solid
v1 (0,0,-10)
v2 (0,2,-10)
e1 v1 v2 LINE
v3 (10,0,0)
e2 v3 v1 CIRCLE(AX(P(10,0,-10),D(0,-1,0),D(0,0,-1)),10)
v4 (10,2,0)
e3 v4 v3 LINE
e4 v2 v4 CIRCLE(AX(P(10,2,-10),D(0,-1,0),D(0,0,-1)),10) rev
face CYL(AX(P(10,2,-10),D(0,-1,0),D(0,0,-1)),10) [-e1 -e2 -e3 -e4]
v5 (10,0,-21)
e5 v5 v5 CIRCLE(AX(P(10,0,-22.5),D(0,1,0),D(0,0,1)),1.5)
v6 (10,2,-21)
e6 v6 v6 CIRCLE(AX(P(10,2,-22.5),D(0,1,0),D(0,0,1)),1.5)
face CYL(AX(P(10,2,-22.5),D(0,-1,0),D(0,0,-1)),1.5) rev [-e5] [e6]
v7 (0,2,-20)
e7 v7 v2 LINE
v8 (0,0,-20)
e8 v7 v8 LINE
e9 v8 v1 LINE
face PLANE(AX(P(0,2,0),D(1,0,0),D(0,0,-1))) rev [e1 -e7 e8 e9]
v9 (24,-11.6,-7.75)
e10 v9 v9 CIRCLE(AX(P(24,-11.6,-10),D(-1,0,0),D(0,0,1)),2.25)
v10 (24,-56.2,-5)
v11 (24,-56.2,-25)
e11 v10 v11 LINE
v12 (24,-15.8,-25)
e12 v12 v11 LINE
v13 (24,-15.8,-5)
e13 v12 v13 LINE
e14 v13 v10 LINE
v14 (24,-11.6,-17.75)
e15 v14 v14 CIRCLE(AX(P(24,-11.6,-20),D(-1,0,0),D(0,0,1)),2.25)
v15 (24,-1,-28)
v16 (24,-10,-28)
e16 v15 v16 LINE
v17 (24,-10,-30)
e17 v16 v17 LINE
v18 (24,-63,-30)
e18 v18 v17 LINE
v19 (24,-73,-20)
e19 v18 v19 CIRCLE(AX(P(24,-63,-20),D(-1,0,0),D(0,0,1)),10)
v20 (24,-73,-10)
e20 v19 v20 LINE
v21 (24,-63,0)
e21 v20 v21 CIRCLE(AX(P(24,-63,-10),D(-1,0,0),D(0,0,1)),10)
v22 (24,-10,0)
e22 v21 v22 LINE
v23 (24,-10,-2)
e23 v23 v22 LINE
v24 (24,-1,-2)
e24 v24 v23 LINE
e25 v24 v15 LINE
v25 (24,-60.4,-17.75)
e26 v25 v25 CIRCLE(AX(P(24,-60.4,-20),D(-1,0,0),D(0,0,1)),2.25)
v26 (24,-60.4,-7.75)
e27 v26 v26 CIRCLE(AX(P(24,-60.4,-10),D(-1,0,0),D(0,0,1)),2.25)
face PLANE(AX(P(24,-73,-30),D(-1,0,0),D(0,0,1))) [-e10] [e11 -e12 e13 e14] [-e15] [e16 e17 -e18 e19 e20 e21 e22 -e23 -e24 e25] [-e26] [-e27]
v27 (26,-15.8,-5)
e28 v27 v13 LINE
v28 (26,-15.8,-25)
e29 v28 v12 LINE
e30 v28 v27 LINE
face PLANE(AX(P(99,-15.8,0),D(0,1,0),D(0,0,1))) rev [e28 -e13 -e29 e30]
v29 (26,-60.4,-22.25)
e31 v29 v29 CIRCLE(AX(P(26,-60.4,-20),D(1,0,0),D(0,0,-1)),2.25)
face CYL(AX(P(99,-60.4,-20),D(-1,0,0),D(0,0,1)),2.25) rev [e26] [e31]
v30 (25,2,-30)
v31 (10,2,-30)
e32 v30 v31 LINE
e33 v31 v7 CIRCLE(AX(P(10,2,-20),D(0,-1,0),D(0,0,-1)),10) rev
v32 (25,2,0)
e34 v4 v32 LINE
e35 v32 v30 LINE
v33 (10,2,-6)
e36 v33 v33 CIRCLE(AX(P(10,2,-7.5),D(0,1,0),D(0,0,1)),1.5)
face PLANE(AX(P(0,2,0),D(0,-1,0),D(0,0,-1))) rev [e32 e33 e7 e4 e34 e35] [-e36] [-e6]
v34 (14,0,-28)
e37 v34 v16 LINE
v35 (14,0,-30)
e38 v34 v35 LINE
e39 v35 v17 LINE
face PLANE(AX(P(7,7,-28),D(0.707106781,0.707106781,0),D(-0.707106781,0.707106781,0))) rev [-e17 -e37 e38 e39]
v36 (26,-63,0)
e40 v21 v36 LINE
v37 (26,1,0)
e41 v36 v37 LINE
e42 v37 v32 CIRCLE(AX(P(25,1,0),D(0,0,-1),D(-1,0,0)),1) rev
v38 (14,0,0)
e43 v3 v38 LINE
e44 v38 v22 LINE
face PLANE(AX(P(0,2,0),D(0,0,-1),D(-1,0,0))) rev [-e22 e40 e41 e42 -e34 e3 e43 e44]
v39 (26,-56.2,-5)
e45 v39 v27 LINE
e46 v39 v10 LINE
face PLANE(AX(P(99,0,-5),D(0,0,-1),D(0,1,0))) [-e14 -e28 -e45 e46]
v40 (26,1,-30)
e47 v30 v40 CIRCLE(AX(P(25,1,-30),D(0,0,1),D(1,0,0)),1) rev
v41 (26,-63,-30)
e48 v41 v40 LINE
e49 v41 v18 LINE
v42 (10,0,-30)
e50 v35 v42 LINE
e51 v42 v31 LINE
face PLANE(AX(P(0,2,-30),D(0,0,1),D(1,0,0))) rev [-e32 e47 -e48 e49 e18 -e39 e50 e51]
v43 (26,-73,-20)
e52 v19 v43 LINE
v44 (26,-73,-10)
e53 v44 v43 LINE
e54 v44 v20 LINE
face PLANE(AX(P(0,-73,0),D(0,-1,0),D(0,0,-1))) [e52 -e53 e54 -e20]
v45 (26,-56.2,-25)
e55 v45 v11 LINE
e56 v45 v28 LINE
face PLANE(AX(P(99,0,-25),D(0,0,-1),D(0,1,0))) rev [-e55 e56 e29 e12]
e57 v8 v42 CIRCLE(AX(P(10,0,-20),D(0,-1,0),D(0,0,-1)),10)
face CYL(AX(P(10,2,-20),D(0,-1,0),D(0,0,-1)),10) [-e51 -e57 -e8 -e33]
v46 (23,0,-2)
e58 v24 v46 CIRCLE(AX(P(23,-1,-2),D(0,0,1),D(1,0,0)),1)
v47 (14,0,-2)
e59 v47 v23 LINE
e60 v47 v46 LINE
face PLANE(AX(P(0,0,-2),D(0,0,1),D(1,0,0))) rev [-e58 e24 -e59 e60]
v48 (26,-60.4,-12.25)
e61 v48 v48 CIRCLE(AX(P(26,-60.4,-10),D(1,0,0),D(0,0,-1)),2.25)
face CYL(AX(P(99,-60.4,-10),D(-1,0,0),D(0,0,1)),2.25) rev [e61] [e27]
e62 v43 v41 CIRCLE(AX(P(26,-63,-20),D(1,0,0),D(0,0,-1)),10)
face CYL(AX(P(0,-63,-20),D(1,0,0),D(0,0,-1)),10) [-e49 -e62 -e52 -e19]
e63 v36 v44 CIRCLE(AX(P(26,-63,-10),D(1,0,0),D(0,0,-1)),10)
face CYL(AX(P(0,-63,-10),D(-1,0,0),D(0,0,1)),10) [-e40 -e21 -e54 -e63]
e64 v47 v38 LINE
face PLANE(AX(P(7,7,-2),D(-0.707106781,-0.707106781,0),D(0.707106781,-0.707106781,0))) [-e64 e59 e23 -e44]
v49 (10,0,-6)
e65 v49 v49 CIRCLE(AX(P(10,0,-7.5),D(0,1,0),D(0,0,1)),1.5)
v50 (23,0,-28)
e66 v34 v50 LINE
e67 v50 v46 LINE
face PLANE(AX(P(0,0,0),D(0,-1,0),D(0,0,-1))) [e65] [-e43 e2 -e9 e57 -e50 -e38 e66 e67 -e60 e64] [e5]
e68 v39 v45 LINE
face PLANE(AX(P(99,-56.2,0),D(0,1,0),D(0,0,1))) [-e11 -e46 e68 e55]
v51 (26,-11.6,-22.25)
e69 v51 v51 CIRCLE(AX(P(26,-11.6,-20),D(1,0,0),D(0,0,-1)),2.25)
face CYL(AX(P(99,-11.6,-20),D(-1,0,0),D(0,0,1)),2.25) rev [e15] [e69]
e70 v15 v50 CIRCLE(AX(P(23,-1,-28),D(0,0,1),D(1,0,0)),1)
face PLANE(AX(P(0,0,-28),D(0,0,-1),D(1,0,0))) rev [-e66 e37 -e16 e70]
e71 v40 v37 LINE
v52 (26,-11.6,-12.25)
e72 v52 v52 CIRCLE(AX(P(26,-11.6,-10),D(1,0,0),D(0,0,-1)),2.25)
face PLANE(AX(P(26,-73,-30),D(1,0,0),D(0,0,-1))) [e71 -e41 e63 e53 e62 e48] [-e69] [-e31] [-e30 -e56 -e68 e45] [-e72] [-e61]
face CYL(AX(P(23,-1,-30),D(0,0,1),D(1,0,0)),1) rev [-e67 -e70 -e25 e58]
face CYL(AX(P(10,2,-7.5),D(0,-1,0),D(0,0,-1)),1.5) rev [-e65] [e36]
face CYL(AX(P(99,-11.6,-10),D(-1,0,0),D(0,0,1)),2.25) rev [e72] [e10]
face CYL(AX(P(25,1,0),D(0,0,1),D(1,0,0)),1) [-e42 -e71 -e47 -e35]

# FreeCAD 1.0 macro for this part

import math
import FreeCAD as App
import Part
import Sketcher

V = App.Vector


def edges_at(feature, points):
    """Names of the edges that pass closest to the given points."""
    edges = feature.Shape.Edges
    near = lambda p: min(range(len(edges)), key=lambda i: edges[i].distToShape(Part.Vertex(*p))[0])
    return sorted({f"Edge{near(p) + 1}" for p in points})


def add_polygon(sketch, points):
    """Adds a closed chain of lines whose ends are joined by coincident constraints."""
    first, n = sketch.GeometryCount, len(points)
    for a, b in zip(points, points[1:] + points[:1]):
        sketch.addGeometry(Part.LineSegment(App.Vector(*a, 0), App.Vector(*b, 0)), False)
    for i in range(n):
        sketch.addConstraint(Sketcher.Constraint("Coincident", first + i, 2, first + (i + 1) % n, 1))

doc = App.newDocument("Part")
params = doc.addObject("Spreadsheet::Sheet", "Params")
for row, (alias, value) in enumerate([
    ("sketch1_diameter", "3 mm"),
    ("sketch1_width", "25 mm"),
    ("sketch1_height", "30 mm"),
    ("pad1_length", "2 mm"),
    ("sketch2_width", "2 mm"),
    ("sketch2_height", "30 mm"),
    ("pad2_length", "75 mm"),
    ("fillet_radius", "1 mm"),
    ("sketch3_diameter", "4.5 mm"),
    ("sketch3_height", "1 mm"),
    ("sketch3_width", "40.4 mm"),
    ("sketch3_width2", "6.8 mm"),
    ("sketch3_height2", "9.5 mm"),
    ("pocket1_length", "75 mm"),
    ("sketch4_height", "1 mm"),
    ("sketch4_width", "6.8 mm"),
    ("pad3_length", "2 mm"),
    ("fillet2_radius", "10 mm"),
    ("sketch5_radius", "1 mm"),
    ("sketch5_width", "9 mm"),
    ("pad4_length", "2 mm"),
], start=1):
    params.set(f"A{row}", alias)
    params.set(f"B{row}", "=" + value)
    params.setAlias(f"B{row}", alias)

body = doc.addObject("PartDesign::Body", "Body")

sketch1 = body.newObject("Sketcher::SketchObject", "Sketch")
sketch1.AttachmentSupport = (doc.getObject("XZ_Plane"), [""])
sketch1.MapMode = "FlatFace"
add_polygon(sketch1, [(0, -30), (0, 0), (25, 0), (25, -30)])
sketch1.addGeometry(Part.Circle(V(10, -7.5, 0), V(0, 0, 1), 1.5), False)
sketch1.addGeometry(Part.Circle(V(10, -22.5, 0), V(0, 0, 1), 1.5), False)
sketch1.addConstraint([
    Sketcher.Constraint("Vertical", 0),
    Sketcher.Constraint("Horizontal", 1),
    Sketcher.Constraint("Vertical", 2),
    Sketcher.Constraint("Horizontal", 3),
    Sketcher.Constraint("Coincident", 0, 2, -1, 1),
    Sketcher.Constraint("Equal", 4, 5),
    Sketcher.Constraint("Vertical", 4, 3, 5, 3),
    Sketcher.Constraint("Diameter", 4, 3.0),
    Sketcher.Constraint("DistanceX", 1, 1, 1, 2, 25.0),
    Sketcher.Constraint("DistanceY", 0, 1, 0, 2, 30.0),
    Sketcher.Constraint("DistanceX", -1, 1, 4, 3, 10.0),
    Sketcher.Constraint("DistanceY", 5, 3, 4, 3, 15.0),
    Sketcher.Constraint("DistanceY", 4, 3, -1, 1, 7.5),
])
sketch1.setExpression("Constraints[11]", "Params.sketch1_diameter")
sketch1.setExpression("Constraints[12]", "Params.sketch1_width")
sketch1.setExpression("Constraints[13]", "Params.sketch1_height")
pad1 = body.newObject("PartDesign::Pad", "Pad")
pad1.Profile = sketch1
pad1.setExpression("Length", "Params.pad1_length")
pad1.Reversed = True

sketch2 = body.newObject("Sketcher::SketchObject", "Sketch001")
sketch2.AttachmentSupport = (doc.getObject("XZ_Plane"), [""])
sketch2.MapMode = "FlatFace"
sketch2.AttachmentOffset = App.Placement(V(0, 0, -2), App.Rotation())
add_polygon(sketch2, [(24, -30), (24, 0), (26, 0), (26, -30)])
sketch2.addConstraint([
    Sketcher.Constraint("Vertical", 0),
    Sketcher.Constraint("Horizontal", 1),
    Sketcher.Constraint("Vertical", 2),
    Sketcher.Constraint("Horizontal", 3),
    Sketcher.Constraint("PointOnObject", 0, 2, -1),
    Sketcher.Constraint("DistanceX", 1, 1, 1, 2, 2.0),
    Sketcher.Constraint("DistanceY", 0, 1, 0, 2, 30.0),
    Sketcher.Constraint("DistanceX", -1, 1, 0, 2, 24.0),
])
sketch2.setExpression("Constraints[9]", "Params.sketch2_width")
sketch2.setExpression("Constraints[10]", "Params.sketch2_height")
pad2 = body.newObject("PartDesign::Pad", "Pad001")
pad2.Profile = sketch2
pad2.setExpression("Length", "Params.pad2_length")
doc.recompute()

fillet = body.newObject("PartDesign::Fillet", "Fillet")
fillet.Base = (pad2, edges_at(pad2, [(26, 2, -15), (24, 0, -15)]))
fillet.setExpression("Radius", "Params.fillet_radius")

sketch3 = body.newObject("Sketcher::SketchObject", "Sketch002")
sketch3.AttachmentSupport = (doc.getObject("YZ_Plane"), [""])
sketch3.MapMode = "FlatFace"
sketch3.AttachmentOffset = App.Placement(V(0, 0, 24), App.Rotation())
sketch3.addGeometry(Part.Circle(V(-60.4, -20, 0), V(0, 0, 1), 2.2), False)
add_polygon(sketch3, [(-15.8, -25), (-56.2, -25), (-56.2, -15.5), (-63, -15.5), (-63, -14.5), (-56.2, -14.5), (-56.2, -5), (-15.8, -5), (-15.8, -14.5), (-9, -14.5), (-9, -15.5), (-15.8, -15.5)])
sketch3.addGeometry(Part.Circle(V(-60.4, -10, 0), V(0, 0, 1), 2.2), False)
sketch3.addGeometry(Part.Circle(V(-11.6, -10, 0), V(0, 0, 1), 2.2), False)
sketch3.addGeometry(Part.Circle(V(-11.6, -20, 0), V(0, 0, 1), 2.2), False)
sketch3.addConstraint([
    Sketcher.Constraint("Horizontal", 1),
    Sketcher.Constraint("Vertical", 2),
    Sketcher.Constraint("Horizontal", 3),
    Sketcher.Constraint("Vertical", 4),
    Sketcher.Constraint("Horizontal", 5),
    Sketcher.Constraint("Vertical", 6),
    Sketcher.Constraint("Horizontal", 7),
    Sketcher.Constraint("Vertical", 8),
    Sketcher.Constraint("Horizontal", 9),
    Sketcher.Constraint("Vertical", 10),
    Sketcher.Constraint("Horizontal", 11),
    Sketcher.Constraint("Vertical", 12),
    Sketcher.Constraint("Equal", 0, 13),
    Sketcher.Constraint("Equal", 13, 14),
    Sketcher.Constraint("Equal", 14, 15),
    Sketcher.Constraint("Horizontal", 13, 3, 14, 3),
    Sketcher.Constraint("Horizontal", 0, 3, 15, 3),
    Sketcher.Constraint("Horizontal", 5, 2, 8, 2),
    Sketcher.Constraint("Horizontal", 3, 2, 10, 2),
    Sketcher.Constraint("Vertical", 0, 3, 13, 3),
    Sketcher.Constraint("Vertical", 14, 3, 15, 3),
    Sketcher.Constraint("Vertical", 2, 2, 5, 2),
    Sketcher.Constraint("Vertical", 8, 2, 11, 2),
    Sketcher.Constraint("Equal", 5, 9),
    Sketcher.Constraint("Equal", 2, 6),
    Sketcher.Constraint("Diameter", 0, 4.5),
    Sketcher.Constraint("DistanceY", 4, 1, 4, 2, 1.0),
    Sketcher.Constraint("DistanceX", 1, 2, 1, 1, 40.4),
    Sketcher.Constraint("DistanceX", 3, 2, 3, 1, 6.8),
    Sketcher.Constraint("DistanceY", 2, 1, 2, 2, 9.5),
    Sketcher.Constraint("DistanceY", 0, 3, -1, 1, 20.0),
    Sketcher.Constraint("DistanceY", 13, 3, -1, 1, 10.0),
    Sketcher.Constraint("DistanceY", 1, 2, -1, 1, 25.0),
    Sketcher.Constraint("DistanceX", 3, 2, -1, 1, 63.0),
    Sketcher.Constraint("DistanceX", 0, 3, -1, 1, 60.4),
    Sketcher.Constraint("DistanceX", 14, 3, -1, 1, 11.6),
])
sketch3.setExpression("Constraints[37]", "Params.sketch3_diameter")
sketch3.setExpression("Constraints[38]", "Params.sketch3_height")
sketch3.setExpression("Constraints[39]", "Params.sketch3_width")
sketch3.setExpression("Constraints[40]", "Params.sketch3_width2")
sketch3.setExpression("Constraints[41]", "Params.sketch3_height2")
pocket1 = body.newObject("PartDesign::Pocket", "Pocket")
pocket1.Profile = sketch3
pocket1.setExpression("Length", "Params.pocket1_length")
pocket1.Reversed = True

sketch4 = body.newObject("Sketcher::SketchObject", "Sketch003")
sketch4.AttachmentSupport = (doc.getObject("YZ_Plane"), [""])
sketch4.MapMode = "FlatFace"
sketch4.AttachmentOffset = App.Placement(V(0, 0, 26), App.Rotation())
add_polygon(sketch4, [(-9, -14.5), (-15.8, -14.5), (-15.8, -15.5), (-9, -15.5)])
add_polygon(sketch4, [(-56.2, -14.5), (-63, -14.5), (-63, -15.5), (-56.2, -15.5)])
sketch4.addConstraint([
    Sketcher.Constraint("Horizontal", 0),
    Sketcher.Constraint("Vertical", 1),
    Sketcher.Constraint("Horizontal", 2),
    Sketcher.Constraint("Vertical", 3),
    Sketcher.Constraint("Horizontal", 4),
    Sketcher.Constraint("Vertical", 5),
    Sketcher.Constraint("Horizontal", 6),
    Sketcher.Constraint("Vertical", 7),
    Sketcher.Constraint("Horizontal", 3, 2, 4, 2),
    Sketcher.Constraint("Horizontal", 2, 2, 5, 2),
    Sketcher.Constraint("Equal", 2, 4),
    Sketcher.Constraint("DistanceY", 1, 2, 1, 1, 1.0),
    Sketcher.Constraint("DistanceX", 0, 2, 0, 1, 6.8),
    Sketcher.Constraint("DistanceX", 2, 2, -1, 1, 9.0),
    Sketcher.Constraint("DistanceX", 4, 2, -1, 1, 63.0),
    Sketcher.Constraint("DistanceY", 0, 2, -1, 1, 14.5),
])
sketch4.setExpression("Constraints[19]", "Params.sketch4_height")
sketch4.setExpression("Constraints[20]", "Params.sketch4_width")
pad3 = body.newObject("PartDesign::Pad", "Pad002")
pad3.Profile = sketch4
pad3.setExpression("Length", "Params.pad3_length")
pad3.Reversed = True
doc.recompute()

fillet2 = body.newObject("PartDesign::Fillet", "Fillet001")
fillet2.Base = (pad3, edges_at(pad3, [
    (25, -73, 0),
    (25, -73, -30),
    (0, 1, -30),
    (0, 1, 0),
]))
fillet2.setExpression("Radius", "Params.fillet2_radius")

sketch5 = body.newObject("Sketcher::SketchObject", "Sketch004")
sketch5.AttachmentSupport = (doc.getObject("XY_Plane"), [""])
sketch5.MapMode = "FlatFace"
sketch5.addGeometry([
    Part.LineSegment(V(23, 0, 0), V(14, 0, 0)),
    Part.LineSegment(V(14, 0, 0), V(24, -10, 0)),
    Part.LineSegment(V(24, -10, 0), V(24, -1, 0)),
    Part.ArcOfCircle(Part.Circle(V(23, -1, 0), V(0, 0, 1), 1), math.radians(0), math.radians(90)),
], False)
sketch5.addConstraint([
    Sketcher.Constraint("Coincident", 0, 2, 1, 1),
    Sketcher.Constraint("Coincident", 1, 2, 2, 1),
    Sketcher.Constraint("Tangent", 2, 2, 3, 1),
    Sketcher.Constraint("Tangent", 3, 2, 0, 1),
    Sketcher.Constraint("Horizontal", 0),
    Sketcher.Constraint("Vertical", 2),
    Sketcher.Constraint("PointOnObject", 0, 2, -1),
    Sketcher.Constraint("Equal", 0, 2),
    Sketcher.Constraint("Radius", 3, 1.0),
    Sketcher.Constraint("DistanceX", 0, 2, 0, 1, 9.0),
    Sketcher.Constraint("DistanceX", -1, 1, 3, 3, 23.0),
])
sketch5.setExpression("Constraints[8]", "Params.sketch5_radius")
sketch5.setExpression("Constraints[9]", "Params.sketch5_width")
pad4 = body.newObject("PartDesign::Pad", "Pad003")
pad4.Profile = sketch5
pad4.setExpression("Length", "Params.pad4_length")
pad4.Reversed = True
doc.recompute()

datumplane = body.newObject("PartDesign::Plane", "DatumPlane")
datumplane.AttachmentSupport = (doc.getObject("XY_Plane"), [""])
datumplane.MapMode = "FlatFace"
datumplane.AttachmentOffset = App.Placement(V(0, 0, -15), App.Rotation())
mirrored = body.newObject("PartDesign::Mirrored", "Mirrored")
mirrored.Originals = [pad4]
mirrored.MirrorPlane = (datumplane, [""])
body.Tip = mirrored

doc.recompute()
